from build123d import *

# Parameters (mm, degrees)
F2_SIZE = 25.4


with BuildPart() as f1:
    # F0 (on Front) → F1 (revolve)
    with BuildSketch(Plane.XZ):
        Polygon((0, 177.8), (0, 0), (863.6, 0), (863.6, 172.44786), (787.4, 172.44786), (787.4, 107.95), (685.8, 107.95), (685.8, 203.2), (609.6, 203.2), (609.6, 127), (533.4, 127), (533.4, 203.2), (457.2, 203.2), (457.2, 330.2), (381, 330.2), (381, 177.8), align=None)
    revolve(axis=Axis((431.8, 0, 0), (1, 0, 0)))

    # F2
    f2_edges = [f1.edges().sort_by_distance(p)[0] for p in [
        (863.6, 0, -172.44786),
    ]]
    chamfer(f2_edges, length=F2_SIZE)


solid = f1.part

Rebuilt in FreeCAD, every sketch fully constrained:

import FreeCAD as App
import Part
import Sketcher
Q = App.Units.Quantity


def edges_at(feature, points):
    """Names of the edges that pass closest to the given points."""
    edges = feature.Shape.Edges
    near = lambda p: min(range(len(edges)), key=lambda i: edges[i].distToShape(Part.Vertex(*p))[0])
    return sorted({f"Edge{near(p) + 1}" for p in points})

doc = App.newDocument("Part")
body = doc.addObject("PartDesign::Body", "Body")

# Sketch on XZ plane
sketch1 = body.newObject("Sketcher::SketchObject", "Sketch")
sketch1.AttachmentSupport = (doc.getObject("XZ_Plane"), [""])
sketch1.MapMode = "FlatFace"
sketch1.addGeometry(Part.LineSegment(App.Vector(0, 178, 0), App.Vector(0, 0, 0)), False)
sketch1.addGeometry(Part.LineSegment(App.Vector(0, 0, 0), App.Vector(864, 0, 0)), False)
sketch1.addGeometry(Part.LineSegment(App.Vector(864, 0, 0), App.Vector(864, 172, 0)), False)
sketch1.addGeometry(Part.LineSegment(App.Vector(864, 172, 0), App.Vector(787, 172, 0)), False)
sketch1.addGeometry(Part.LineSegment(App.Vector(787, 172, 0), App.Vector(787, 108, 0)), False)
sketch1.addGeometry(Part.LineSegment(App.Vector(787, 108, 0), App.Vector(686, 108, 0)), False)
sketch1.addGeometry(Part.LineSegment(App.Vector(686, 108, 0), App.Vector(686, 203, 0)), False)
sketch1.addGeometry(Part.LineSegment(App.Vector(686, 203, 0), App.Vector(610, 203, 0)), False)
sketch1.addGeometry(Part.LineSegment(App.Vector(610, 203, 0), App.Vector(610, 127, 0)), False)
sketch1.addGeometry(Part.LineSegment(App.Vector(610, 127, 0), App.Vector(533, 127, 0)), False)
sketch1.addGeometry(Part.LineSegment(App.Vector(533, 127, 0), App.Vector(533, 203, 0)), False)
sketch1.addGeometry(Part.LineSegment(App.Vector(533, 203, 0), App.Vector(457, 203, 0)), False)
sketch1.addGeometry(Part.LineSegment(App.Vector(457, 203, 0), App.Vector(457, 330, 0)), False)
sketch1.addGeometry(Part.LineSegment(App.Vector(457, 330, 0), App.Vector(381, 330, 0)), False)
sketch1.addGeometry(Part.LineSegment(App.Vector(381, 330, 0), App.Vector(381, 178, 0)), False)
sketch1.addGeometry(Part.LineSegment(App.Vector(381, 178, 0), App.Vector(0, 178, 0)), False)
sketch1.addConstraint(Sketcher.Constraint("Coincident", 0, 2, 1, 1))
sketch1.addConstraint(Sketcher.Constraint("Coincident", 1, 2, 2, 1))
sketch1.addConstraint(Sketcher.Constraint("Coincident", 2, 2, 3, 1))
sketch1.addConstraint(Sketcher.Constraint("Coincident", 3, 2, 4, 1))
sketch1.addConstraint(Sketcher.Constraint("Coincident", 4, 2, 5, 1))
sketch1.addConstraint(Sketcher.Constraint("Coincident", 5, 2, 6, 1))
sketch1.addConstraint(Sketcher.Constraint("Coincident", 6, 2, 7, 1))
sketch1.addConstraint(Sketcher.Constraint("Coincident", 7, 2, 8, 1))
sketch1.addConstraint(Sketcher.Constraint("Coincident", 8, 2, 9, 1))
sketch1.addConstraint(Sketcher.Constraint("Coincident", 9, 2, 10, 1))
sketch1.addConstraint(Sketcher.Constraint("Coincident", 10, 2, 11, 1))
sketch1.addConstraint(Sketcher.Constraint("Coincident", 11, 2, 12, 1))
sketch1.addConstraint(Sketcher.Constraint("Coincident", 12, 2, 13, 1))
sketch1.addConstraint(Sketcher.Constraint("Coincident", 13, 2, 14, 1))
sketch1.addConstraint(Sketcher.Constraint("Coincident", 14, 2, 15, 1))
sketch1.addConstraint(Sketcher.Constraint("Coincident", 15, 2, 0, 1))
sketch1.addConstraint(Sketcher.Constraint("Vertical", 0))
sketch1.addConstraint(Sketcher.Constraint("Horizontal", 1))
sketch1.addConstraint(Sketcher.Constraint("Vertical", 2))
sketch1.addConstraint(Sketcher.Constraint("Horizontal", 3))
sketch1.addConstraint(Sketcher.Constraint("Vertical", 4))
sketch1.addConstraint(Sketcher.Constraint("Horizontal", 5))
sketch1.addConstraint(Sketcher.Constraint("Vertical", 6))
sketch1.addConstraint(Sketcher.Constraint("Horizontal", 7))
sketch1.addConstraint(Sketcher.Constraint("Vertical", 8))
sketch1.addConstraint(Sketcher.Constraint("Horizontal", 9))
sketch1.addConstraint(Sketcher.Constraint("Vertical", 10))
sketch1.addConstraint(Sketcher.Constraint("Horizontal", 11))
sketch1.addConstraint(Sketcher.Constraint("Vertical", 12))
sketch1.addConstraint(Sketcher.Constraint("Horizontal", 13))
sketch1.addConstraint(Sketcher.Constraint("Vertical", 14))
sketch1.addConstraint(Sketcher.Constraint("Horizontal", 15))
sketch1.addConstraint(Sketcher.Constraint("Coincident", 0, 2, -1, 1))
sketch1.addConstraint(Sketcher.Constraint("Horizontal", 7, 2, 10, 2))
sketch1.addConstraint(Sketcher.Constraint("Equal", 3, 7))
sketch1.addConstraint(Sketcher.Constraint("Equal", 7, 9))
sketch1.addConstraint(Sketcher.Constraint("Equal", 9, 11))
sketch1.addConstraint(Sketcher.Constraint("Equal", 11, 13))
sketch1.addConstraint(Sketcher.Constraint("Equal", 13, 8))
sketch1.addConstraint(Sketcher.Constraint("DistanceX", 1, 1, 1, 2, Q("34 in")))
sketch1.addConstraint(Sketcher.Constraint("DistanceX", 3, 2, 3, 1, Q("3 in")))
sketch1.addConstraint(Sketcher.Constraint("DistanceX", 5, 2, 5, 1, Q("4 in")))
sketch1.addConstraint(Sketcher.Constraint("DistanceY", 0, 2, 0, 1, Q("7 in")))
sketch1.addConstraint(Sketcher.Constraint("DistanceY", 12, 1, 12, 2, Q("5 in")))
sketch1.addConstraint(Sketcher.Constraint("DistanceY", 14, 2, 14, 1, Q("6 in")))
sketch1.addConstraint(Sketcher.Constraint("DistanceY", 6, 1, 6, 2, Q("3.75 in")))
sketch1.addConstraint(Sketcher.Constraint("DistanceY", 2, 1, 2, 2, 172.44786))
revolution = body.newObject("PartDesign::Revolution", "Revolution")
revolution.Profile = sketch1
revolution.ReferenceAxis = (sketch1, ["H_Axis"])
revolution.Angle = 360
doc.recompute()

chamfer = body.newObject("PartDesign::Chamfer", "Chamfer")
chamfer.Base = (revolution, edges_at(revolution, [(863.6, 0, -172.448)]))
chamfer.Size = Q("1 in")

doc.recompute()
